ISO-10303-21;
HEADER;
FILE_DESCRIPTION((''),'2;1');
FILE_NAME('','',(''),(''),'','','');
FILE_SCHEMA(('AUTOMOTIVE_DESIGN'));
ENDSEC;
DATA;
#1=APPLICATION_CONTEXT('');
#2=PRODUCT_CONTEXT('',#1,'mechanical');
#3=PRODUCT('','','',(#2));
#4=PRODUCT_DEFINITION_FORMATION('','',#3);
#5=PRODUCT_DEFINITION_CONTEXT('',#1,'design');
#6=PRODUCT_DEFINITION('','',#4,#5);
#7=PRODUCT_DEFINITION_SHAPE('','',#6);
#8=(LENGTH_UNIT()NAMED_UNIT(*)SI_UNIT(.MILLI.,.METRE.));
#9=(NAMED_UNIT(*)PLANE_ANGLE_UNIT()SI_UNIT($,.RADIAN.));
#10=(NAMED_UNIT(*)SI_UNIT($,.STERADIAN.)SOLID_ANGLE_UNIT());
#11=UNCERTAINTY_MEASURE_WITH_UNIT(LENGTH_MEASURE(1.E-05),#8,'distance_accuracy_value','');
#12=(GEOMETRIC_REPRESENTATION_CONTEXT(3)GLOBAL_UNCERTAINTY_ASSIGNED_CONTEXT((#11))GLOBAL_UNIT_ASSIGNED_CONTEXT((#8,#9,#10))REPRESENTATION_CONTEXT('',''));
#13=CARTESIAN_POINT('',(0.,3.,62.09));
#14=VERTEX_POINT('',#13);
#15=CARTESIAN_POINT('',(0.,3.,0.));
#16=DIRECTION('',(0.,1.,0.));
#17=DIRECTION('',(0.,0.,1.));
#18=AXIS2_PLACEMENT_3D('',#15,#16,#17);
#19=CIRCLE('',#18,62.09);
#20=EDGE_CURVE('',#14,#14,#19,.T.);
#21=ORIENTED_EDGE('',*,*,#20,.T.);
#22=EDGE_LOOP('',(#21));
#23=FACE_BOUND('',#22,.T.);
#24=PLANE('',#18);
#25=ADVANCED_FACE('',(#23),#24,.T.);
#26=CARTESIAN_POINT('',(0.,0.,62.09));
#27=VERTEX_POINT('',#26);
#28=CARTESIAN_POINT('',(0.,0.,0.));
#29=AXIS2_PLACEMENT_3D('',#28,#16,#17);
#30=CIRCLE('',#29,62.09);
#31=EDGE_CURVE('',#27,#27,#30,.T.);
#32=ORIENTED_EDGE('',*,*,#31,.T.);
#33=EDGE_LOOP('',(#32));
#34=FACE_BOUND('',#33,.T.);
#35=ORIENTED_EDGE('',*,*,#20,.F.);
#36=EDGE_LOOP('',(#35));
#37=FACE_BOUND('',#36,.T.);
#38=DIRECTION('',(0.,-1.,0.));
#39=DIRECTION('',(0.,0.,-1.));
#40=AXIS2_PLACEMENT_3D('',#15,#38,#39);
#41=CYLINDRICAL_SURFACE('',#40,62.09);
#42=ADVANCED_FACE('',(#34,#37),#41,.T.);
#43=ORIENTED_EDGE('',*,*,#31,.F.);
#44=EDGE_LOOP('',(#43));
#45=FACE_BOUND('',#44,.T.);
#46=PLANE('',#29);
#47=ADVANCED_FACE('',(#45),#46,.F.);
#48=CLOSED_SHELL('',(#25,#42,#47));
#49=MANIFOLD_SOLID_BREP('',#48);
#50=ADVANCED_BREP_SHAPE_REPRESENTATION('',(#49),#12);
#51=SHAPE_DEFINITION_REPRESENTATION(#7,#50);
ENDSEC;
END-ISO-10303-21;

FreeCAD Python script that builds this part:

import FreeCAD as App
import Part
import Sketcher
Q = App.Units.Quantity

doc = App.newDocument("Part")
body = doc.addObject("PartDesign::Body", "Body")

# Sketch on XZ plane
sketch1 = doc.addObject("Sketcher::SketchObject", "Sketch")
body.addObject(sketch1)
sketch1.AttachmentSupport = (doc.XZ_Plane, [""])
sketch1.MapMode = "FlatFace"
sketch1.addGeometry(Part.Circle(App.Vector(0, 0, 0), App.Vector(0, 0, 1), 62), False)
sketch1.addConstraint(Sketcher.Constraint("Coincident", 0, 3, -1, 1))
sketch1.addConstraint(Sketcher.Constraint("Diameter", 0, Q("124.18 mm")))
pad1 = doc.addObject("PartDesign::Pad", "Pad")
body.addObject(pad1)
pad1.Profile = sketch1
pad1.Length = 3
pad1.Reversed = True

doc.recompute()
